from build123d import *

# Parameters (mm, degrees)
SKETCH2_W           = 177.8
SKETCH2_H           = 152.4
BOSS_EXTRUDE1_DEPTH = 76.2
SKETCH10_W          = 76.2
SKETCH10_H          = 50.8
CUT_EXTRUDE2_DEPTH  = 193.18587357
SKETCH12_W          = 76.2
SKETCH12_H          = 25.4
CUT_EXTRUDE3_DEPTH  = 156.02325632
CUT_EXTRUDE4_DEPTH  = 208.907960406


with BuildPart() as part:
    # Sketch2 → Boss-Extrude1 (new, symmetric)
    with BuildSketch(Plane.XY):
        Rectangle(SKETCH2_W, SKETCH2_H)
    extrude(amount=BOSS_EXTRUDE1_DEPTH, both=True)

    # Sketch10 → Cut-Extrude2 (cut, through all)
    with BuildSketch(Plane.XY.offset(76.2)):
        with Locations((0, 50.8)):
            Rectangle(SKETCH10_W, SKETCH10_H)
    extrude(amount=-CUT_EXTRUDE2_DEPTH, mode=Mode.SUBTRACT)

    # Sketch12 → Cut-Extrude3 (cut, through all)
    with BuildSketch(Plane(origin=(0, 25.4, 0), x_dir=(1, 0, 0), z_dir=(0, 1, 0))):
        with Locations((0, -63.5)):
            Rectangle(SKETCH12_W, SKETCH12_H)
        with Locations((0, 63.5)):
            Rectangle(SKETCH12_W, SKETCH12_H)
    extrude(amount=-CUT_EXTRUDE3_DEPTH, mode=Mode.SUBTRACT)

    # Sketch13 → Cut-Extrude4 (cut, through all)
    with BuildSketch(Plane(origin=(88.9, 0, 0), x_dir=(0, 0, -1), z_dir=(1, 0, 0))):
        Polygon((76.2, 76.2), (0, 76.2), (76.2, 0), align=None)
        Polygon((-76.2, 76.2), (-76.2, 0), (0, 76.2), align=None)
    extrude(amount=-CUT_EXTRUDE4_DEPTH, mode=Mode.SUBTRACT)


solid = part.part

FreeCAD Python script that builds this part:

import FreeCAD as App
import Part
import Sketcher

V = App.Vector
Q = App.Units.Quantity


def add_polygon(sketch, points):
    """Adds a closed chain of lines whose ends are joined by coincident constraints."""
    first, n = sketch.GeometryCount, len(points)
    for a, b in zip(points, points[1:] + points[:1]):
        sketch.addGeometry(Part.LineSegment(App.Vector(*a, 0), App.Vector(*b, 0)), False)
    for i in range(n):
        sketch.addConstraint(Sketcher.Constraint("Coincident", first + i, 2, first + (i + 1) % n, 1))

doc = App.newDocument("Part")
body = doc.addObject("PartDesign::Body", "Body")

sketch1 = doc.addObject("Sketcher::SketchObject", "Sketch")
body.addObject(sketch1)
sketch1.AttachmentSupport = (doc.XY_Plane, [""])
sketch1.MapMode = "FlatFace"
add_polygon(sketch1, [(-89, 76), (-89, -76), (89, -76), (89, 76)])
sketch1.addConstraint([
    Sketcher.Constraint("Vertical", 0),
    Sketcher.Constraint("Horizontal", 1),
    Sketcher.Constraint("Vertical", 2),
    Sketcher.Constraint("Horizontal", 3),
    Sketcher.Constraint("Symmetric", 0, 2, 2, 2, -1, 1),
    Sketcher.Constraint("DistanceX", 1, 1, 1, 2, Q("7 in")),
    Sketcher.Constraint("DistanceY", 0, 2, 0, 1, Q("6 in")),
])
pad1 = doc.addObject("PartDesign::Pad", "Pad")
body.addObject(pad1)
pad1.Profile = sketch1
pad1.Length = Q("6 in")
pad1.Midplane = True

sketch2 = doc.addObject("Sketcher::SketchObject", "Sketch001")
body.addObject(sketch2)
sketch2.AttachmentSupport = (doc.XY_Plane, [""])
sketch2.MapMode = "FlatFace"
sketch2.AttachmentOffset = App.Placement(V(0, 0, 3 * 25.4), App.Rotation())
add_polygon(sketch2, [(-38, 76), (-38, 25), (38, 25), (38, 76)])
sketch2.addConstraint([
    Sketcher.Constraint("Vertical", 0),
    Sketcher.Constraint("Horizontal", 1),
    Sketcher.Constraint("Vertical", 2),
    Sketcher.Constraint("Horizontal", 3),
    Sketcher.Constraint("DistanceX", 1, 1, 1, 2, Q("3 in")),
    Sketcher.Constraint("DistanceY", 0, 2, 0, 1, Q("2 in")),
    Sketcher.Constraint("DistanceY", -1, 1, 0, 2, Q("1 in")),
    Sketcher.Constraint("DistanceX", 0, 2, -1, 1, Q("1.5 in")),
])
pocket1 = doc.addObject("PartDesign::Pocket", "Pocket")
body.addObject(pocket1)
pocket1.Profile = sketch2
pocket1.Type = "ThroughAll"

sketch3 = doc.addObject("Sketcher::SketchObject", "Sketch002")
body.addObject(sketch3)
sketch3.AttachmentSupport = (doc.XZ_Plane, [""])
sketch3.MapMode = "FlatFace"
sketch3.AttachmentOffset = App.Placement(V(0, 0, -1 * 25.4), App.Rotation())
add_polygon(sketch3, [(-38, 51), (-38, 76), (38, 76), (38, 51)])
add_polygon(sketch3, [(-38, -76), (-38, -51), (38, -51), (38, -76)])
sketch3.addConstraint([
    Sketcher.Constraint("Vertical", 0),
    Sketcher.Constraint("Horizontal", 1),
    Sketcher.Constraint("Vertical", 2),
    Sketcher.Constraint("Horizontal", 3),
    Sketcher.Constraint("Vertical", 4),
    Sketcher.Constraint("Horizontal", 5),
    Sketcher.Constraint("Vertical", 6),
    Sketcher.Constraint("Horizontal", 7),
    Sketcher.Constraint("Symmetric", 2, 2, 4, 2, -1, 1),
    Sketcher.Constraint("Symmetric", 0, 2, 6, 2, -1, 1),
    Sketcher.Constraint("Vertical", 3, 2, 4, 2),
    Sketcher.Constraint("DistanceX", 1, 1, 1, 2, Q("3 in")),
    Sketcher.Constraint("DistanceY", 0, 1, 0, 2, Q("1 in")),
    Sketcher.Constraint("DistanceY", -1, 1, 0, 2, Q("3 in")),
])
pocket2 = doc.addObject("PartDesign::Pocket", "Pocket001")
body.addObject(pocket2)
pocket2.Profile = sketch3
pocket2.Type = "ThroughAll"
pocket2.Reversed = True

sketch4 = doc.addObject("Sketcher::SketchObject", "Sketch003")
body.addObject(sketch4)
sketch4.AttachmentSupport = (doc.YZ_Plane, [""])
sketch4.MapMode = "FlatFace"
sketch4.AttachmentOffset = App.Placement(V(0, 0, 3.5 * 25.4), App.Rotation())
add_polygon(sketch4, [(76, -76), (76, 0), (0, -76)])
add_polygon(sketch4, [(76, 76), (0, 76), (76, 0)])
sketch4.addConstraint([
    Sketcher.Constraint("Vertical", 0),
    Sketcher.Constraint("Horizontal", 2),
    Sketcher.Constraint("Horizontal", 3),
    Sketcher.Constraint("Vertical", 5),
    Sketcher.Constraint("Coincident", 4, 2, 0, 2),
    Sketcher.Constraint("Symmetric", 1, 2, 3, 2, -1, 1),
    Sketcher.Constraint("PointOnObject", 0, 2, -1),
    Sketcher.Constraint("PointOnObject", 1, 2, -2),
    Sketcher.Constraint("Perpendicular", 1, 4),
    Sketcher.Constraint("DistanceX", 2, 1, 2, 2, Q("3 in")),
])
pocket3 = doc.addObject("PartDesign::Pocket", "Pocket002")
body.addObject(pocket3)
pocket3.Profile = sketch4
pocket3.Type = "ThroughAll"

doc.recompute()
